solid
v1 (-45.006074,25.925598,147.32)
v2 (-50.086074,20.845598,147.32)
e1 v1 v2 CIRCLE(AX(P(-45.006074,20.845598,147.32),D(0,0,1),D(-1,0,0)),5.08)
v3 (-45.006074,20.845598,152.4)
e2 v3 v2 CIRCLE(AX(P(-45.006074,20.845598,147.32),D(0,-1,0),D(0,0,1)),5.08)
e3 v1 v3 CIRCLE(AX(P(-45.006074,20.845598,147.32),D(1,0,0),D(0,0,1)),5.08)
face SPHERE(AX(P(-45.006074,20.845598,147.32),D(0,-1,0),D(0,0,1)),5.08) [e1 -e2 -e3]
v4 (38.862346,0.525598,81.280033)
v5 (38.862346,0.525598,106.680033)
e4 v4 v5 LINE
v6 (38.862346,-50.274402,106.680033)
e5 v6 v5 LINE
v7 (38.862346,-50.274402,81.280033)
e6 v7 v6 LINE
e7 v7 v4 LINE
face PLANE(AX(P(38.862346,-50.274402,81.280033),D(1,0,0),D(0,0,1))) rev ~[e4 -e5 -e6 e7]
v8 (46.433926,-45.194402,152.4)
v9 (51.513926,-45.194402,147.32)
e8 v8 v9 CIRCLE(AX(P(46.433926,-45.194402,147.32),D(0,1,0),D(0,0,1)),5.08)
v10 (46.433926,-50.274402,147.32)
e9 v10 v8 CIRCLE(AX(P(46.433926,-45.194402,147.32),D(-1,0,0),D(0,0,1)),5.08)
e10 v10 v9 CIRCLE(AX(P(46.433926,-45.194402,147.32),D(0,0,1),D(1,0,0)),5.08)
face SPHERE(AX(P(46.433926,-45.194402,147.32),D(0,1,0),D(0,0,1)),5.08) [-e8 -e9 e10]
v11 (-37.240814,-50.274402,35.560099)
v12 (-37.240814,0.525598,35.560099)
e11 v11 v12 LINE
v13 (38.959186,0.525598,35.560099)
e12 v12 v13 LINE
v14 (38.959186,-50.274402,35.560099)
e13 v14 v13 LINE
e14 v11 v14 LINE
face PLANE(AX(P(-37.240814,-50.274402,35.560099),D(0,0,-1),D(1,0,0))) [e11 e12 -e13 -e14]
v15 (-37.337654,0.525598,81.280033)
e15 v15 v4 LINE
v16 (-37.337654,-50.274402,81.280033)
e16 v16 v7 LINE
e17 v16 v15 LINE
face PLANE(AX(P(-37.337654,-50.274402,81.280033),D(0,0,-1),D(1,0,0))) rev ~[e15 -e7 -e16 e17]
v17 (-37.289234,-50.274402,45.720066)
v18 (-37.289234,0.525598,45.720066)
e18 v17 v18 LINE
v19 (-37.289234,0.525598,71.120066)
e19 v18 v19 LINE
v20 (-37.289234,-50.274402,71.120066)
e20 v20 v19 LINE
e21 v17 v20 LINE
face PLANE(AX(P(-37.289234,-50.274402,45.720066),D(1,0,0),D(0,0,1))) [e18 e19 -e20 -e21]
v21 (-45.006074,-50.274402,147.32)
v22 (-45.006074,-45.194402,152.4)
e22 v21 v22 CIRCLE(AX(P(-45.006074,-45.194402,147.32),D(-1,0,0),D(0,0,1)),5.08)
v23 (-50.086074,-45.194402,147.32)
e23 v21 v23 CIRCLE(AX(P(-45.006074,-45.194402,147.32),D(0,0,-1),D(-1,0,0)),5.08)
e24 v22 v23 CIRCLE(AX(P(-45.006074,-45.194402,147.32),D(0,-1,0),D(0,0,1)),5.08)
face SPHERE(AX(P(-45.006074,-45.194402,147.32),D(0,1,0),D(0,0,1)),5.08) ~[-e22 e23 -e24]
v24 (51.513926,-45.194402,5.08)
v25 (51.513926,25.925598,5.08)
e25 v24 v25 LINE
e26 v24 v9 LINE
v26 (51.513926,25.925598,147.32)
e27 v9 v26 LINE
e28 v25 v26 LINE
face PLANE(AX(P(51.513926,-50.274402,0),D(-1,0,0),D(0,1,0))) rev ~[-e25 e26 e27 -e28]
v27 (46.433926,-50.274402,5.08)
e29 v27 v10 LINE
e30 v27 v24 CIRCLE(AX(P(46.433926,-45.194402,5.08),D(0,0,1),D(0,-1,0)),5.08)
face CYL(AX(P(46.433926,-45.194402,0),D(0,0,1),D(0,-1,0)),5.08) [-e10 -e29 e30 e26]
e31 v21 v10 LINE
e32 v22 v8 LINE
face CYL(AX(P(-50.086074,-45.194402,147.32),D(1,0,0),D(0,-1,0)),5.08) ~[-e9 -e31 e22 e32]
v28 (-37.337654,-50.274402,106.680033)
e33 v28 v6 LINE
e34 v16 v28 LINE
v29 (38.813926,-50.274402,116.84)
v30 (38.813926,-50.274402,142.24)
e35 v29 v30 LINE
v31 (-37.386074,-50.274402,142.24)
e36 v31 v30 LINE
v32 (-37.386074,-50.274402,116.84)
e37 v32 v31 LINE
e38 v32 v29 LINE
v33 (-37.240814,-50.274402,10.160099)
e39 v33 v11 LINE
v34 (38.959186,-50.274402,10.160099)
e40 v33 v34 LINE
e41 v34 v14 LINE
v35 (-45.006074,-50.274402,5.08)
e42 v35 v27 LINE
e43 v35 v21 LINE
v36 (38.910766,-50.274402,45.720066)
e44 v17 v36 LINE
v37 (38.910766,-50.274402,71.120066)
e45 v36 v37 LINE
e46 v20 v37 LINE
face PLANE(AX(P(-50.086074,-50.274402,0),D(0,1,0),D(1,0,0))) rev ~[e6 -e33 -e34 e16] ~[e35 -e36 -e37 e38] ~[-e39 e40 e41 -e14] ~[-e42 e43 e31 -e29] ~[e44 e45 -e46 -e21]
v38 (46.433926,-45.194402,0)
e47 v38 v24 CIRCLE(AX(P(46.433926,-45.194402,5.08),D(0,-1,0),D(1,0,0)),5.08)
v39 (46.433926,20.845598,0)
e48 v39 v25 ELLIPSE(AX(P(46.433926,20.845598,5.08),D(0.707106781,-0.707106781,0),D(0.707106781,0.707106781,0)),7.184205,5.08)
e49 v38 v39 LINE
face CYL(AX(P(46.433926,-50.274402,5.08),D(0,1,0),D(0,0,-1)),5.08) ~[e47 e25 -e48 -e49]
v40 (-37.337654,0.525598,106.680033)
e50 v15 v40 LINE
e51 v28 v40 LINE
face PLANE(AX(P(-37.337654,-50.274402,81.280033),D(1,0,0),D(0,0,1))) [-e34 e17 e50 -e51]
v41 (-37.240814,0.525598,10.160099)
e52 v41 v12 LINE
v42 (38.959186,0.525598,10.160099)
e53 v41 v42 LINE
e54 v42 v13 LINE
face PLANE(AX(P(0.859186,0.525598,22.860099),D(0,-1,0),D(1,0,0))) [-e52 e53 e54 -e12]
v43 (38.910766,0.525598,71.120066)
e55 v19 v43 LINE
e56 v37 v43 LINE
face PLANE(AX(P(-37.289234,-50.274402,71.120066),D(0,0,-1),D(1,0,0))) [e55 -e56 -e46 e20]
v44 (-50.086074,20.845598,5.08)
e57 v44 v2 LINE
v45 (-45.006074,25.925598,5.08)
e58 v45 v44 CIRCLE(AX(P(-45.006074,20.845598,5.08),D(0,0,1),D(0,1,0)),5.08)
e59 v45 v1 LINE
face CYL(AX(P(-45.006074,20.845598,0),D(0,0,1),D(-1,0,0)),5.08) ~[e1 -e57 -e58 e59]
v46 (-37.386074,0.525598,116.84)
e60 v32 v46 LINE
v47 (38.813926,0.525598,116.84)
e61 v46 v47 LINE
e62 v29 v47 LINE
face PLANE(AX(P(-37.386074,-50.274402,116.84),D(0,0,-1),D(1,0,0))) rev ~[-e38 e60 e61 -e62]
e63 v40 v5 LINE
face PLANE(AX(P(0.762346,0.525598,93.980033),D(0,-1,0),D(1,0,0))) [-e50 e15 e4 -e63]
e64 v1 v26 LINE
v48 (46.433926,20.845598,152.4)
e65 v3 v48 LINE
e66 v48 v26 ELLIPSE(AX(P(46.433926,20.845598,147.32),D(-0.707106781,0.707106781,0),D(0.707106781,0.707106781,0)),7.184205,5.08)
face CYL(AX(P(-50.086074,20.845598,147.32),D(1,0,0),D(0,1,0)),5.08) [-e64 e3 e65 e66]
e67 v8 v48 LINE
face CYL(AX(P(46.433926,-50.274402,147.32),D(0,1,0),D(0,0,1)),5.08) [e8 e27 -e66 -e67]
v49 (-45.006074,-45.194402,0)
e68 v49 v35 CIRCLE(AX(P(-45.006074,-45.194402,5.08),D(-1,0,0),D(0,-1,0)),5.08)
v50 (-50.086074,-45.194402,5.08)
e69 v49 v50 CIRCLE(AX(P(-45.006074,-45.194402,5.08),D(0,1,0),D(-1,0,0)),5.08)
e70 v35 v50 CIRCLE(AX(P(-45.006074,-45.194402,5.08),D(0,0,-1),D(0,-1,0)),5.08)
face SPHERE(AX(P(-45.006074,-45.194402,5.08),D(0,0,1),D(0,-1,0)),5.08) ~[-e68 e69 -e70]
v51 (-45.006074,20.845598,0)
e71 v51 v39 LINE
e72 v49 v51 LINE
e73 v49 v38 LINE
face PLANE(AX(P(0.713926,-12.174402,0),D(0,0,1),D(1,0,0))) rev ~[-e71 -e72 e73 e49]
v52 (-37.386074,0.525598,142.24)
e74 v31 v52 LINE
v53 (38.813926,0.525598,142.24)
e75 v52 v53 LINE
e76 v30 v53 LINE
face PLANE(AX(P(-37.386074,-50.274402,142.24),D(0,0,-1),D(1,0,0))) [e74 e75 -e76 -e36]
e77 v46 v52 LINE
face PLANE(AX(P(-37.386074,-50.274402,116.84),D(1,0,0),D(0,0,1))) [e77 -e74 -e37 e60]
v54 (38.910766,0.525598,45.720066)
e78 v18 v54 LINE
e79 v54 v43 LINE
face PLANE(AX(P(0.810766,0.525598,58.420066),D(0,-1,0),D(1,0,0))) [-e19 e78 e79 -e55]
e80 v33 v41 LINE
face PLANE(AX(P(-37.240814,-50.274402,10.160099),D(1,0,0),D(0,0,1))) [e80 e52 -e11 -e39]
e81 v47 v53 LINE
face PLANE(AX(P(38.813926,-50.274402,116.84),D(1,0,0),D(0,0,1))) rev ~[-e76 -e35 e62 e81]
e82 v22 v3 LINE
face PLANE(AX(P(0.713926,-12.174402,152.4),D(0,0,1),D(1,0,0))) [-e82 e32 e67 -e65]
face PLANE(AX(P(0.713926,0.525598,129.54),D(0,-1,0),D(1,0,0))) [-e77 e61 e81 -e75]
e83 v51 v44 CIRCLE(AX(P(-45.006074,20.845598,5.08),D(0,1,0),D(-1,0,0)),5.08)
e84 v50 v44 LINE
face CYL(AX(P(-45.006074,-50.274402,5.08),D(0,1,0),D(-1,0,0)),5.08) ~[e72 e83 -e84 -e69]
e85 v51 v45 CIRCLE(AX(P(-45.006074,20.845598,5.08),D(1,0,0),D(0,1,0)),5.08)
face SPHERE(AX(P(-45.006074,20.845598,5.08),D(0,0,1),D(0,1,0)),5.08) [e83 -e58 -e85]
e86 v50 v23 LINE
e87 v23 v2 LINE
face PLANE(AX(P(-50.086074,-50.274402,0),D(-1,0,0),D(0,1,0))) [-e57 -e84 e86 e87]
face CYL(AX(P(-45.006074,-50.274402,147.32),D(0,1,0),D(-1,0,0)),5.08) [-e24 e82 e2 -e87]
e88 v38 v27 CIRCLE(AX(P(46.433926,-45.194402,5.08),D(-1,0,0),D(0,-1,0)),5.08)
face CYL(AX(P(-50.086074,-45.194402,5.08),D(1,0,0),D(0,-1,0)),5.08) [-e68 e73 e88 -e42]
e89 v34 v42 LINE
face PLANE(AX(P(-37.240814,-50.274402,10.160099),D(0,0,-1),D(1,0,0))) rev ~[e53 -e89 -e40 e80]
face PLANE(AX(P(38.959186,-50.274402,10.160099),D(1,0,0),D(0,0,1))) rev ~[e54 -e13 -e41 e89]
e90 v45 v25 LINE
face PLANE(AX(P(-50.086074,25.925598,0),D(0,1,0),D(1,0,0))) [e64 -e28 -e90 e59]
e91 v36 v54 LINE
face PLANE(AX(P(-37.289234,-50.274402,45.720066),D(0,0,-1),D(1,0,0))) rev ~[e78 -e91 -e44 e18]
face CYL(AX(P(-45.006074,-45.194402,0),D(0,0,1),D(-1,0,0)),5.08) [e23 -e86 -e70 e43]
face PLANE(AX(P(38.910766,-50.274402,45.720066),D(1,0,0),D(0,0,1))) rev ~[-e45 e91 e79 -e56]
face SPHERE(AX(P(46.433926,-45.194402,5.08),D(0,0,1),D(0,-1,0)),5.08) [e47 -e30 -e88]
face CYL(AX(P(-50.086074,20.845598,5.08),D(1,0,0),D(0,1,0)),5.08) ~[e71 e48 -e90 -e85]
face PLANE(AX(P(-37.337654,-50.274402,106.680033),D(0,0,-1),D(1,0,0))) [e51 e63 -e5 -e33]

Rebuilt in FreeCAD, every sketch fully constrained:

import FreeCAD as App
import Part
import Sketcher
Q = App.Units.Quantity


def edges_at(feature, points):
    """Names of the edges that pass closest to the given points."""
    edges = feature.Shape.Edges
    near = lambda p: min(range(len(edges)), key=lambda i: edges[i].distToShape(Part.Vertex(*p))[0])
    return sorted({f"Edge{near(p) + 1}" for p in points})

doc = App.newDocument("Part")
params = doc.addObject("Spreadsheet::Sheet", "Params")
for row, (alias, value) in enumerate([
    ("sketch1_width", "4 in"),
    ("sketch1_height", "3 in"),
    ("pad1_length", "6 in"),
    ("sketch2_width", "3 in"),
    ("sketch2_height", "1 in"),
    ("pocket1_length", "2 in"),
    ("fillet_radius", "0.2 in"),
], start=1):
    params.set(f"A{row}", alias)
    params.set(f"B{row}", "=" + value)
    params.setAlias(f"B{row}", alias)

body = doc.addObject("PartDesign::Body", "Body")

# Sketch on XY plane
sketch1 = body.newObject("Sketcher::SketchObject", "Sketch")
sketch1.AttachmentSupport = (doc.getObject("XY_Plane"), [""])
sketch1.MapMode = "FlatFace"
sketch1.addGeometry([
    Part.LineSegment(App.Vector(-50.086074, 25.925598, 0), App.Vector(-50.086074, -50.274402, 0)),
    Part.LineSegment(App.Vector(-50.086074, -50.274402, 0), App.Vector(51.513926, -50.274402, 0)),
    Part.LineSegment(App.Vector(51.513926, -50.274402, 0), App.Vector(51.513926, 25.925598, 0)),
    Part.LineSegment(App.Vector(51.513926, 25.925598, 0), App.Vector(-50.086074, 25.925598, 0)),
], False)
sketch1.addConstraint([
    Sketcher.Constraint("Coincident", 0, 2, 1, 1),
    Sketcher.Constraint("Coincident", 1, 2, 2, 1),
    Sketcher.Constraint("Coincident", 2, 2, 3, 1),
    Sketcher.Constraint("Coincident", 3, 2, 0, 1),
    Sketcher.Constraint("Vertical", 0),
    Sketcher.Constraint("Horizontal", 1),
    Sketcher.Constraint("Vertical", 2),
    Sketcher.Constraint("Horizontal", 3),
    Sketcher.Constraint("DistanceX", 1, 1, 1, 2, Q("4 in")),
    Sketcher.Constraint("DistanceY", 0, 2, 0, 1, Q("3 in")),
    Sketcher.Constraint("DistanceY", -1, 1, 2, 2, 25.925598),
    Sketcher.Constraint("DistanceX", 0, 2, -1, 1, 50.086074),
])
sketch1.setExpression("Constraints[8]", "Params.sketch1_width")
sketch1.setExpression("Constraints[9]", "Params.sketch1_height")
pad1 = body.newObject("PartDesign::Pad", "Pad")
pad1.Profile = sketch1
pad1.setExpression("Length", "Params.pad1_length")

# Sketch on XZ plane
sketch2 = body.newObject("Sketcher::SketchObject", "Sketch001")
sketch2.AttachmentSupport = (doc.getObject("XZ_Plane"), [""])
sketch2.MapMode = "FlatFace"
sketch2.AttachmentOffset = App.Placement(App.Vector(0, 0, 50.274402), App.Rotation())
sketch2.addGeometry([
    Part.LineSegment(App.Vector(-37.386074, 142.24, 0), App.Vector(-37.386074, 116.84, 0)),  # 0
    Part.LineSegment(App.Vector(-37.386074, 116.84, 0), App.Vector(38.813926, 116.84, 0)),  # 1
    Part.LineSegment(App.Vector(38.813926, 116.84, 0), App.Vector(38.813926, 142.24, 0)),  # 2
    Part.LineSegment(App.Vector(38.813926, 142.24, 0), App.Vector(-37.386074, 142.24, 0)),  # 3
    Part.LineSegment(App.Vector(-37.337654, 106.680033, 0), App.Vector(-37.337654, 81.280033, 0)),  # 4
    Part.LineSegment(App.Vector(-37.337654, 81.280033, 0), App.Vector(38.862346, 81.280033, 0)),  # 5
    Part.LineSegment(App.Vector(38.862346, 81.280033, 0), App.Vector(38.862346, 106.680033, 0)),  # 6
    Part.LineSegment(App.Vector(38.862346, 106.680033, 0), App.Vector(-37.337654, 106.680033, 0)),  # 7
    Part.LineSegment(App.Vector(-37.289234, 71.120066, 0), App.Vector(-37.289234, 45.720066, 0)),  # 8
    Part.LineSegment(App.Vector(-37.289234, 45.720066, 0), App.Vector(38.910766, 45.720066, 0)),  # 9
    Part.LineSegment(App.Vector(38.910766, 45.720066, 0), App.Vector(38.910766, 71.120066, 0)),  # 10
    Part.LineSegment(App.Vector(38.910766, 71.120066, 0), App.Vector(-37.289234, 71.120066, 0)),  # 11
    Part.LineSegment(App.Vector(-37.240814, 35.560099, 0), App.Vector(-37.240814, 10.160099, 0)),  # 12
    Part.LineSegment(App.Vector(-37.240814, 10.160099, 0), App.Vector(38.959186, 10.160099, 0)),  # 13
    Part.LineSegment(App.Vector(38.959186, 10.160099, 0), App.Vector(38.959186, 35.560099, 0)),  # 14
    Part.LineSegment(App.Vector(38.959186, 35.560099, 0), App.Vector(-37.240814, 35.560099, 0)),  # 15
], False)
sketch2.addConstraint([
    Sketcher.Constraint("Coincident", 0, 2, 1, 1),
    Sketcher.Constraint("Coincident", 1, 2, 2, 1),
    Sketcher.Constraint("Coincident", 2, 2, 3, 1),
    Sketcher.Constraint("Coincident", 3, 2, 0, 1),
    Sketcher.Constraint("Coincident", 4, 2, 5, 1),
    Sketcher.Constraint("Coincident", 5, 2, 6, 1),
    Sketcher.Constraint("Coincident", 6, 2, 7, 1),
    Sketcher.Constraint("Coincident", 7, 2, 4, 1),
    Sketcher.Constraint("Coincident", 8, 2, 9, 1),
    Sketcher.Constraint("Coincident", 9, 2, 10, 1),
    Sketcher.Constraint("Coincident", 10, 2, 11, 1),
    Sketcher.Constraint("Coincident", 11, 2, 8, 1),
    Sketcher.Constraint("Coincident", 12, 2, 13, 1),
    Sketcher.Constraint("Coincident", 13, 2, 14, 1),
    Sketcher.Constraint("Coincident", 14, 2, 15, 1),
    Sketcher.Constraint("Coincident", 15, 2, 12, 1),
    Sketcher.Constraint("Vertical", 0),
    Sketcher.Constraint("Horizontal", 1),
    Sketcher.Constraint("Vertical", 2),
    Sketcher.Constraint("Horizontal", 3),
    Sketcher.Constraint("Vertical", 4),
    Sketcher.Constraint("Horizontal", 5),
    Sketcher.Constraint("Vertical", 6),
    Sketcher.Constraint("Horizontal", 7),
    Sketcher.Constraint("Vertical", 8),
    Sketcher.Constraint("Horizontal", 9),
    Sketcher.Constraint("Vertical", 10),
    Sketcher.Constraint("Horizontal", 11),
    Sketcher.Constraint("Vertical", 12),
    Sketcher.Constraint("Horizontal", 13),
    Sketcher.Constraint("Vertical", 14),
    Sketcher.Constraint("Horizontal", 15),
    Sketcher.Constraint("Equal", 3, 5),
    Sketcher.Constraint("Equal", 7, 9),
    Sketcher.Constraint("Equal", 11, 13),
    Sketcher.Constraint("Equal", 2, 4),
    Sketcher.Constraint("Equal", 6, 8),
    Sketcher.Constraint("Equal", 10, 12),
    Sketcher.Constraint("DistanceX", 1, 1, 1, 2, Q("3 in")),
    Sketcher.Constraint("DistanceY", 0, 2, 0, 1, Q("1 in")),
    Sketcher.Constraint("DistanceY", -1, 1, 0, 2, Q("4.6 in")),
    Sketcher.Constraint("DistanceY", -1, 1, 12, 2, 10.160099),
    Sketcher.Constraint("DistanceX", 0, 2, 4, 2, 0.04842),
    Sketcher.Constraint("DistanceX", 4, 2, 8, 2, 0.04842),
    Sketcher.Constraint("DistanceX", 8, 2, 12, 2, 0.04842),
    Sketcher.Constraint("DistanceX", 0, 2, -1, 1, 37.386074),
    Sketcher.Constraint("DistanceY", -1, 1, 4, 2, 81.280033),
    Sketcher.Constraint("DistanceY", -1, 1, 8, 2, 45.720066),
])
sketch2.setExpression("Constraints[38]", "Params.sketch2_width")
sketch2.setExpression("Constraints[39]", "Params.sketch2_height")
pocket1 = body.newObject("PartDesign::Pocket", "Pocket")
pocket1.Profile = sketch2
pocket1.setExpression("Length", "Params.pocket1_length")
doc.recompute()

fillet = body.newObject("PartDesign::Fillet", "Fillet")
fillet.Base = (pocket1, edges_at(pocket1, [
    (-50.086, -12.174, 152.4),
    (51.514, -12.174, 152.4),
    (0.714, 25.926, 152.4),
    (0.714, -50.274, 152.4),
    (51.514, -50.274, 76.2),
    (-50.086, -50.274, 76.2),
    (-50.086, 25.926, 76.2),
    (0.714, -50.274, 0),
    (51.514, -12.174, 0),
    (0.714, 25.926, 0),
    (-50.086, -12.174, 0),
]))
fillet.setExpression("Radius", "Params.fillet_radius")

doc.recompute()
